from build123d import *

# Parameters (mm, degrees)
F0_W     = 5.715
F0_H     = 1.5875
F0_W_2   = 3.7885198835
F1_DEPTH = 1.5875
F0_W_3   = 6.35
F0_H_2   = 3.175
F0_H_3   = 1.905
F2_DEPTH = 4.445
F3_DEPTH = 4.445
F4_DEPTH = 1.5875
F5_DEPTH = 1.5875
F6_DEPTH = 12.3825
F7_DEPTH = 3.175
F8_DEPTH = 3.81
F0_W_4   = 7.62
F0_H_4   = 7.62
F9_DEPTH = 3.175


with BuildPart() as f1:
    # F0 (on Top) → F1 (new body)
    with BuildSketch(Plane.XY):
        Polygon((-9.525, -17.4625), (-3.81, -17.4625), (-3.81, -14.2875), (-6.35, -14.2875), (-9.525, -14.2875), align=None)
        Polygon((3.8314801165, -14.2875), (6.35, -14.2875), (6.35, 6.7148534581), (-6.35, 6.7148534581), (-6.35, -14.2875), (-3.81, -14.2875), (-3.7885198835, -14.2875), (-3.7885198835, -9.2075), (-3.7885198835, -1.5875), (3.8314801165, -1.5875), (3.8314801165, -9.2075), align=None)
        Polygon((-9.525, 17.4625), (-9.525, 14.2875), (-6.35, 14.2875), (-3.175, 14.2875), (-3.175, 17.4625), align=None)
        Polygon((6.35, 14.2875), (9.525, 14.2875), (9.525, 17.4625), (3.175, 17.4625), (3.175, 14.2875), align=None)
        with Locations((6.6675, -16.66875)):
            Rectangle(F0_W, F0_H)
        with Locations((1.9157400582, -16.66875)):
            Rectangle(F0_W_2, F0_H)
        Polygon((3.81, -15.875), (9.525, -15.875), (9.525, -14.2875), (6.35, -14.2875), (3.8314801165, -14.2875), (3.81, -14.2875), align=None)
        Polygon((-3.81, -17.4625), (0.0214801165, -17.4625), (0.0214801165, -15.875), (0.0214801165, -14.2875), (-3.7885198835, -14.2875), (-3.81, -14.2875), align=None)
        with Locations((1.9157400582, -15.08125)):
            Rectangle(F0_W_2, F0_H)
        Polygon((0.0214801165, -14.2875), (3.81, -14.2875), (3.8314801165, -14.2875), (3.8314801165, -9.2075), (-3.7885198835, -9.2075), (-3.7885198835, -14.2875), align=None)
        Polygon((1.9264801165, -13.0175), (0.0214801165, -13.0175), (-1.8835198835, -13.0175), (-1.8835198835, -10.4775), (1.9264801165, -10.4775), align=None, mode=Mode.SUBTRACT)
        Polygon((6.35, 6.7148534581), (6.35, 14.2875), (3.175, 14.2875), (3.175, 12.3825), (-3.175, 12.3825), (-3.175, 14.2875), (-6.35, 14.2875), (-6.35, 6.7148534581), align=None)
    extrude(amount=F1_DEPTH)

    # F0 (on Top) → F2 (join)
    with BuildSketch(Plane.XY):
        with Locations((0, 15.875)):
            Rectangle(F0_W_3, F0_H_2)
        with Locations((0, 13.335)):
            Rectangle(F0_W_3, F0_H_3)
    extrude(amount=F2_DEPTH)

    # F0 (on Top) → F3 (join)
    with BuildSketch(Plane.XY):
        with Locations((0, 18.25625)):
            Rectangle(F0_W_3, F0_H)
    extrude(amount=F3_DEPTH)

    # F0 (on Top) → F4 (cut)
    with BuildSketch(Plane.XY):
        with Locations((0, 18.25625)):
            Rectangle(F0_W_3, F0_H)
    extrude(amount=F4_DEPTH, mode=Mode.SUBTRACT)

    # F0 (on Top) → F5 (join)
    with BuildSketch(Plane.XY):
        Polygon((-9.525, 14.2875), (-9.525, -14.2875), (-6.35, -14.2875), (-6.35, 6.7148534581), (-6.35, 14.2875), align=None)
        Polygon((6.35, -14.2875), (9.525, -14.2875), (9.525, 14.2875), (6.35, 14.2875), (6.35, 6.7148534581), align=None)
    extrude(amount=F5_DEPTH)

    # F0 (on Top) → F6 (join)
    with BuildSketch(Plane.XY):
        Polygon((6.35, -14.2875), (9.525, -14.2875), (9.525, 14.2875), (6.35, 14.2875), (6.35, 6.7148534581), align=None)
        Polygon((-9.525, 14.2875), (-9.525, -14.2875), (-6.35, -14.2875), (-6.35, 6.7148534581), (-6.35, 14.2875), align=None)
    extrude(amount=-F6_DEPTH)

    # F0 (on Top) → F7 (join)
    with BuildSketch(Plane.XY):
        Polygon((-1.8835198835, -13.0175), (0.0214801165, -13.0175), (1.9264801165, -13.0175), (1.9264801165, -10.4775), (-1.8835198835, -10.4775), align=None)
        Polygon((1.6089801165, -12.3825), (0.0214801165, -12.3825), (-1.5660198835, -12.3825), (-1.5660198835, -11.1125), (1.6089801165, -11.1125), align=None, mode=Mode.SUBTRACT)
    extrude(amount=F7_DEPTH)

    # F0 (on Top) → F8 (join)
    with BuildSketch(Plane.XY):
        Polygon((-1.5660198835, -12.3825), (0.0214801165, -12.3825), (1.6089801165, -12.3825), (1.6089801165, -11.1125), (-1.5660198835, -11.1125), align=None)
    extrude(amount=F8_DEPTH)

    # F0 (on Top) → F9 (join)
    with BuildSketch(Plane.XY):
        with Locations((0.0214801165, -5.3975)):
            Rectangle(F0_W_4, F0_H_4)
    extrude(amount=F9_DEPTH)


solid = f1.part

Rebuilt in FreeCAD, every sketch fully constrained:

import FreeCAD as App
import Part
import Sketcher
Q = App.Units.Quantity


def add_polygon(sketch, points):
    """Adds a closed chain of lines whose ends are joined by coincident constraints."""
    first, n = sketch.GeometryCount, len(points)
    for a, b in zip(points, points[1:] + points[:1]):
        sketch.addGeometry(Part.LineSegment(App.Vector(*a, 0), App.Vector(*b, 0)), False)
    for i in range(n):
        sketch.addConstraint(Sketcher.Constraint("Coincident", first + i, 2, first + (i + 1) % n, 1))

doc = App.newDocument("Part")
body = doc.addObject("PartDesign::Body", "Body")

# Sketch on XY plane
sketch1 = body.newObject("Sketcher::SketchObject", "Sketch")
sketch1.AttachmentSupport = (doc.getObject("XY_Plane"), [""])
sketch1.MapMode = "FlatFace"
add_polygon(sketch1, [(-9.525, -17.4625), (9.525, -17.4625), (9.525, -14.2875), (6.35, -14.2875), (6.35, 14.2875), (9.525, 14.2875), (9.525, 17.4625), (3.175, 17.4625), (3.175, 12.3825), (-3.175, 12.3825), (-3.175, 17.4625), (-9.525, 17.4625), (-9.525, 14.2875), (-6.35, 14.2875), (-6.35, -14.2875), (-9.525, -14.2875)])  # lines 0-15
add_polygon(sketch1, [(1.92648, -10.4775), (1.92648, -13.0175), (-1.88352, -13.0175), (-1.88352, -10.4775)])  # lines 16-19
add_polygon(sketch1, [(-3.78852, -9.2075), (-3.78852, -1.5875), (3.83148, -1.5875), (3.83148, -9.2075)])  # lines 20-23
sketch1.addConstraint([
    Sketcher.Constraint("Horizontal", 0),
    Sketcher.Constraint("Vertical", 1),
    Sketcher.Constraint("Horizontal", 2),
    Sketcher.Constraint("Vertical", 3),
    Sketcher.Constraint("Horizontal", 4),
    Sketcher.Constraint("Vertical", 5),
    Sketcher.Constraint("Horizontal", 6),
    Sketcher.Constraint("Vertical", 7),
    Sketcher.Constraint("Horizontal", 8),
    Sketcher.Constraint("Vertical", 9),
    Sketcher.Constraint("Horizontal", 10),
    Sketcher.Constraint("Vertical", 11),
    Sketcher.Constraint("Horizontal", 12),
    Sketcher.Constraint("Vertical", 13),
    Sketcher.Constraint("Horizontal", 14),
    Sketcher.Constraint("Vertical", 15),
    Sketcher.Constraint("Vertical", 16),
    Sketcher.Constraint("Horizontal", 17),
    Sketcher.Constraint("Vertical", 18),
    Sketcher.Constraint("Horizontal", 19),
    Sketcher.Constraint("Vertical", 20),
    Sketcher.Constraint("Horizontal", 21),
    Sketcher.Constraint("Vertical", 22),
    Sketcher.Constraint("Horizontal", 23),
    Sketcher.Constraint("Symmetric", 0, 2, 10, 2, -1, 1),
    Sketcher.Constraint("Symmetric", 2, 2, 12, 2, -1, 1),
    Sketcher.Constraint("Symmetric", 4, 2, 14, 2, -1, 1),
    Sketcher.Constraint("Symmetric", 6, 2, 9, 2, -2),
    Sketcher.Constraint("Symmetric", 4, 2, 11, 2, -2),
    Sketcher.Constraint("Equal", 6, 8),
    Sketcher.Constraint("Equal", 14, 1),
    Sketcher.Constraint("Equal", 23, 20),
    Sketcher.Constraint("DistanceX", 21, 1, 21, 2, Q("0.3 in")),
    Sketcher.Constraint("DistanceY", 7, 2, 7, 1, Q("0.2 in")),
    Sketcher.Constraint("DistanceY", 16, 2, 16, 1, Q("0.1 in")),
    Sketcher.Constraint("DistanceX", 0, 1, 0, 2, Q("0.75 in")),
    Sketcher.Constraint("DistanceX", 17, 2, 17, 1, Q("0.15 in")),
    Sketcher.Constraint("DistanceX", 13, 2, 2, 2, Q("0.5 in")),
    Sketcher.Constraint("DistanceY", 13, 2, 20, 2, Q("0.5 in")),
    Sketcher.Constraint("DistanceY", 3, 1, 3, 2, Q("1.125 in")),
    Sketcher.Constraint("DistanceY", 2, 2, 16, 2, Q("0.05 in")),
    Sketcher.Constraint("DistanceX", 20, 2, 18, 2, Q("0.075 in")),
    Sketcher.Constraint("DistanceX", -1, 1, 16, 2, Q("1.92648 mm")),
])
pad1 = body.newObject("PartDesign::Pad", "Pad")
pad1.Profile = sketch1
pad1.Length = Q("0.0625 in")

# Sketch on XY plane
sketch2 = body.newObject("Sketcher::SketchObject", "Sketch001")
sketch2.AttachmentSupport = (doc.getObject("XY_Plane"), [""])
sketch2.MapMode = "FlatFace"
add_polygon(sketch2, [(-3.175, 17.4625), (-3.175, 12.3825), (3.175, 12.3825), (3.175, 17.4625)])  # lines 0-3
sketch2.addConstraint([
    Sketcher.Constraint("Vertical", 0),
    Sketcher.Constraint("Horizontal", 1),
    Sketcher.Constraint("Vertical", 2),
    Sketcher.Constraint("Horizontal", 3),
    Sketcher.Constraint("DistanceY", 0, 2, 0, 1, Q("0.2 in")),
    Sketcher.Constraint("DistanceX", 1, 1, 1, 2, Q("0.25 in")),
    Sketcher.Constraint("DistanceX", 0, 2, -1, 1, Q("0.125 in")),
    Sketcher.Constraint("DistanceY", -1, 1, 2, 2, Q("0.6875 in")),
])
pad2 = body.newObject("PartDesign::Pad", "Pad001")
pad2.Profile = sketch2
pad2.Length = Q("0.175 in")

# Sketch on XY plane
sketch3 = body.newObject("Sketcher::SketchObject", "Sketch002")
sketch3.AttachmentSupport = (doc.getObject("XY_Plane"), [""])
sketch3.MapMode = "FlatFace"
add_polygon(sketch3, [(-3.175, 19.05), (-3.175, 17.4625), (3.175, 17.4625), (3.175, 19.05)])  # lines 0-3
sketch3.addConstraint([
    Sketcher.Constraint("Vertical", 0),
    Sketcher.Constraint("Horizontal", 1),
    Sketcher.Constraint("Vertical", 2),
    Sketcher.Constraint("Horizontal", 3),
    Sketcher.Constraint("DistanceX", 1, 1, 1, 2, Q("0.25 in")),
    Sketcher.Constraint("DistanceY", 0, 2, 0, 1, Q("0.0625 in")),
    Sketcher.Constraint("DistanceY", -1, 1, 2, 2, Q("0.75 in")),
    Sketcher.Constraint("DistanceX", 0, 2, -1, 1, Q("0.125 in")),
])
pad3 = body.newObject("PartDesign::Pad", "Pad002")
pad3.Profile = sketch3
pad3.Length = Q("0.175 in")

# Sketch on XY plane
sketch4 = body.newObject("Sketcher::SketchObject", "Sketch003")
sketch4.AttachmentSupport = (doc.getObject("XY_Plane"), [""])
sketch4.MapMode = "FlatFace"
add_polygon(sketch4, [(-3.175, 19.05), (-3.175, 17.4625), (3.175, 17.4625), (3.175, 19.05)])  # lines 0-3
sketch4.addConstraint([
    Sketcher.Constraint("Vertical", 0),
    Sketcher.Constraint("Horizontal", 1),
    Sketcher.Constraint("Vertical", 2),
    Sketcher.Constraint("Horizontal", 3),
    Sketcher.Constraint("DistanceX", 1, 1, 1, 2, Q("0.25 in")),
    Sketcher.Constraint("DistanceY", 0, 2, 0, 1, Q("0.0625 in")),
    Sketcher.Constraint("DistanceY", -1, 1, 2, 2, Q("0.75 in")),
    Sketcher.Constraint("DistanceX", 0, 2, -1, 1, Q("0.125 in")),
])
pocket1 = body.newObject("PartDesign::Pocket", "Pocket")
pocket1.Profile = sketch4
pocket1.Length = Q("0.0625 in")
pocket1.Reversed = True

# Sketch on XY plane
sketch5 = body.newObject("Sketcher::SketchObject", "Sketch004")
sketch5.AttachmentSupport = (doc.getObject("XY_Plane"), [""])
sketch5.MapMode = "FlatFace"
add_polygon(sketch5, [(-9.525, 14.2875), (-9.525, -14.2875), (-6.35, -14.2875), (-6.35, 14.2875)])  # lines 0-3
add_polygon(sketch5, [(6.35, -14.2875), (9.525, -14.2875), (9.525, 14.2875), (6.35, 14.2875)])  # lines 4-7
sketch5.addConstraint([
    Sketcher.Constraint("Vertical", 0),
    Sketcher.Constraint("Horizontal", 1),
    Sketcher.Constraint("Vertical", 2),
    Sketcher.Constraint("Horizontal", 3),
    Sketcher.Constraint("Horizontal", 4),
    Sketcher.Constraint("Vertical", 5),
    Sketcher.Constraint("Horizontal", 6),
    Sketcher.Constraint("Vertical", 7),
    Sketcher.Constraint("Symmetric", 3, 2, 4, 2, -1, 1),
    Sketcher.Constraint("Symmetric", 1, 2, 6, 2, -1, 1),
    Sketcher.Constraint("Horizontal", 1, 2, 4, 2),
    Sketcher.Constraint("DistanceX", 2, 2, 6, 2, Q("0.5 in")),
    Sketcher.Constraint("DistanceX", 1, 1, 1, 2, Q("0.125 in")),
    Sketcher.Constraint("DistanceY", 0, 2, 0, 1, Q("1.125 in")),
])
pad4 = body.newObject("PartDesign::Pad", "Pad003")
pad4.Profile = sketch5
pad4.Length = Q("0.0625 in")

# Sketch on XY plane
sketch6 = body.newObject("Sketcher::SketchObject", "Sketch005")
sketch6.AttachmentSupport = (doc.getObject("XY_Plane"), [""])
sketch6.MapMode = "FlatFace"
add_polygon(sketch6, [(6.35, -14.2875), (9.525, -14.2875), (9.525, 14.2875), (6.35, 14.2875)])  # lines 0-3
add_polygon(sketch6, [(-9.525, 14.2875), (-9.525, -14.2875), (-6.35, -14.2875), (-6.35, 14.2875)])  # lines 4-7
sketch6.addConstraint([
    Sketcher.Constraint("Horizontal", 0),
    Sketcher.Constraint("Vertical", 1),
    Sketcher.Constraint("Horizontal", 2),
    Sketcher.Constraint("Vertical", 3),
    Sketcher.Constraint("Vertical", 4),
    Sketcher.Constraint("Horizontal", 5),
    Sketcher.Constraint("Vertical", 6),
    Sketcher.Constraint("Horizontal", 7),
    Sketcher.Constraint("Symmetric", 1, 2, 4, 2, -1, 1),
    Sketcher.Constraint("Symmetric", 3, 2, 6, 2, -1, 1),
    Sketcher.Constraint("Horizontal", 3, 2, 4, 2),
    Sketcher.Constraint("DistanceX", 5, 2, 3, 2, Q("0.5 in")),
    Sketcher.Constraint("DistanceX", 0, 1, 0, 2, Q("0.125 in")),
    Sketcher.Constraint("DistanceY", 1, 1, 1, 2, Q("1.125 in")),
])
pad5 = body.newObject("PartDesign::Pad", "Pad004")
pad5.Profile = sketch6
pad5.Length = Q("0.4875 in")
pad5.Reversed = True

# Sketch on XY plane
sketch7 = body.newObject("Sketcher::SketchObject", "Sketch006")
sketch7.AttachmentSupport = (doc.getObject("XY_Plane"), [""])
sketch7.MapMode = "FlatFace"
add_polygon(sketch7, [(-1.88352, -13.0175), (1.92648, -13.0175), (1.92648, -10.4775), (-1.88352, -10.4775)])  # lines 0-3
add_polygon(sketch7, [(1.60898, -11.1125), (1.60898, -12.3825), (-1.56602, -12.3825), (-1.56602, -11.1125)])  # lines 4-7
sketch7.addConstraint([
    Sketcher.Constraint("Horizontal", 0),
    Sketcher.Constraint("Vertical", 1),
    Sketcher.Constraint("Horizontal", 2),
    Sketcher.Constraint("Vertical", 3),
    Sketcher.Constraint("Vertical", 4),
    Sketcher.Constraint("Horizontal", 5),
    Sketcher.Constraint("Vertical", 6),
    Sketcher.Constraint("Horizontal", 7),
    Sketcher.Constraint("DistanceY", 1, 1, 1, 2, Q("0.1 in")),
    Sketcher.Constraint("DistanceX", 0, 1, 0, 2, Q("0.15 in")),
    Sketcher.Constraint("DistanceY", 4, 2, 4, 1, Q("0.05 in")),
    Sketcher.Constraint("DistanceX", 5, 2, 5, 1, Q("0.125 in")),
    Sketcher.Constraint("DistanceY", 6, 2, -1, 1, Q("0.4375 in")),
    Sketcher.Constraint("DistanceY", 0, 2, 4, 2, Q("0.025 in")),
    Sketcher.Constraint("DistanceX", 4, 2, 0, 2, Q("0.0125 in")),
    Sketcher.Constraint("DistanceX", -1, 1, 0, 2, Q("1.92648 mm")),
])
pad6 = body.newObject("PartDesign::Pad", "Pad005")
pad6.Profile = sketch7
pad6.Length = Q("0.125 in")

# Sketch on XY plane
sketch8 = body.newObject("Sketcher::SketchObject", "Sketch007")
sketch8.AttachmentSupport = (doc.getObject("XY_Plane"), [""])
sketch8.MapMode = "FlatFace"
add_polygon(sketch8, [(-1.56602, -12.3825), (1.60898, -12.3825), (1.60898, -11.1125), (-1.56602, -11.1125)])  # lines 0-3
sketch8.addConstraint([
    Sketcher.Constraint("Horizontal", 0),
    Sketcher.Constraint("Vertical", 1),
    Sketcher.Constraint("Horizontal", 2),
    Sketcher.Constraint("Vertical", 3),
    Sketcher.Constraint("DistanceY", 1, 1, 1, 2, Q("0.05 in")),
    Sketcher.Constraint("DistanceX", 0, 1, 0, 2, Q("0.125 in")),
    Sketcher.Constraint("DistanceY", 1, 2, -1, 1, Q("0.4375 in")),
    Sketcher.Constraint("DistanceX", -1, 1, 0, 2, Q("1.60898 mm")),
])
pad7 = body.newObject("PartDesign::Pad", "Pad006")
pad7.Profile = sketch8
pad7.Length = Q("0.15 in")

# Sketch on XY plane
sketch9 = body.newObject("Sketcher::SketchObject", "Sketch008")
sketch9.AttachmentSupport = (doc.getObject("XY_Plane"), [""])
sketch9.MapMode = "FlatFace"
add_polygon(sketch9, [(-3.78852, -1.5875), (-3.78852, -9.2075), (3.83148, -9.2075), (3.83148, -1.5875)])  # lines 0-3
sketch9.addConstraint([
    Sketcher.Constraint("Vertical", 0),
    Sketcher.Constraint("Horizontal", 1),
    Sketcher.Constraint("Vertical", 2),
    Sketcher.Constraint("Horizontal", 3),
    Sketcher.Constraint("Equal", 3, 0),
    Sketcher.Constraint("DistanceX", 1, 1, 1, 2, Q("0.3 in")),
    Sketcher.Constraint("DistanceY", 2, 2, -1, 1, Q("0.0625 in")),
    Sketcher.Constraint("DistanceX", 0, 2, -1, 1, Q("3.78852 mm")),
])
pad8 = body.newObject("PartDesign::Pad", "Pad007")
pad8.Profile = sketch9
pad8.Length = Q("0.125 in")

doc.recompute()
